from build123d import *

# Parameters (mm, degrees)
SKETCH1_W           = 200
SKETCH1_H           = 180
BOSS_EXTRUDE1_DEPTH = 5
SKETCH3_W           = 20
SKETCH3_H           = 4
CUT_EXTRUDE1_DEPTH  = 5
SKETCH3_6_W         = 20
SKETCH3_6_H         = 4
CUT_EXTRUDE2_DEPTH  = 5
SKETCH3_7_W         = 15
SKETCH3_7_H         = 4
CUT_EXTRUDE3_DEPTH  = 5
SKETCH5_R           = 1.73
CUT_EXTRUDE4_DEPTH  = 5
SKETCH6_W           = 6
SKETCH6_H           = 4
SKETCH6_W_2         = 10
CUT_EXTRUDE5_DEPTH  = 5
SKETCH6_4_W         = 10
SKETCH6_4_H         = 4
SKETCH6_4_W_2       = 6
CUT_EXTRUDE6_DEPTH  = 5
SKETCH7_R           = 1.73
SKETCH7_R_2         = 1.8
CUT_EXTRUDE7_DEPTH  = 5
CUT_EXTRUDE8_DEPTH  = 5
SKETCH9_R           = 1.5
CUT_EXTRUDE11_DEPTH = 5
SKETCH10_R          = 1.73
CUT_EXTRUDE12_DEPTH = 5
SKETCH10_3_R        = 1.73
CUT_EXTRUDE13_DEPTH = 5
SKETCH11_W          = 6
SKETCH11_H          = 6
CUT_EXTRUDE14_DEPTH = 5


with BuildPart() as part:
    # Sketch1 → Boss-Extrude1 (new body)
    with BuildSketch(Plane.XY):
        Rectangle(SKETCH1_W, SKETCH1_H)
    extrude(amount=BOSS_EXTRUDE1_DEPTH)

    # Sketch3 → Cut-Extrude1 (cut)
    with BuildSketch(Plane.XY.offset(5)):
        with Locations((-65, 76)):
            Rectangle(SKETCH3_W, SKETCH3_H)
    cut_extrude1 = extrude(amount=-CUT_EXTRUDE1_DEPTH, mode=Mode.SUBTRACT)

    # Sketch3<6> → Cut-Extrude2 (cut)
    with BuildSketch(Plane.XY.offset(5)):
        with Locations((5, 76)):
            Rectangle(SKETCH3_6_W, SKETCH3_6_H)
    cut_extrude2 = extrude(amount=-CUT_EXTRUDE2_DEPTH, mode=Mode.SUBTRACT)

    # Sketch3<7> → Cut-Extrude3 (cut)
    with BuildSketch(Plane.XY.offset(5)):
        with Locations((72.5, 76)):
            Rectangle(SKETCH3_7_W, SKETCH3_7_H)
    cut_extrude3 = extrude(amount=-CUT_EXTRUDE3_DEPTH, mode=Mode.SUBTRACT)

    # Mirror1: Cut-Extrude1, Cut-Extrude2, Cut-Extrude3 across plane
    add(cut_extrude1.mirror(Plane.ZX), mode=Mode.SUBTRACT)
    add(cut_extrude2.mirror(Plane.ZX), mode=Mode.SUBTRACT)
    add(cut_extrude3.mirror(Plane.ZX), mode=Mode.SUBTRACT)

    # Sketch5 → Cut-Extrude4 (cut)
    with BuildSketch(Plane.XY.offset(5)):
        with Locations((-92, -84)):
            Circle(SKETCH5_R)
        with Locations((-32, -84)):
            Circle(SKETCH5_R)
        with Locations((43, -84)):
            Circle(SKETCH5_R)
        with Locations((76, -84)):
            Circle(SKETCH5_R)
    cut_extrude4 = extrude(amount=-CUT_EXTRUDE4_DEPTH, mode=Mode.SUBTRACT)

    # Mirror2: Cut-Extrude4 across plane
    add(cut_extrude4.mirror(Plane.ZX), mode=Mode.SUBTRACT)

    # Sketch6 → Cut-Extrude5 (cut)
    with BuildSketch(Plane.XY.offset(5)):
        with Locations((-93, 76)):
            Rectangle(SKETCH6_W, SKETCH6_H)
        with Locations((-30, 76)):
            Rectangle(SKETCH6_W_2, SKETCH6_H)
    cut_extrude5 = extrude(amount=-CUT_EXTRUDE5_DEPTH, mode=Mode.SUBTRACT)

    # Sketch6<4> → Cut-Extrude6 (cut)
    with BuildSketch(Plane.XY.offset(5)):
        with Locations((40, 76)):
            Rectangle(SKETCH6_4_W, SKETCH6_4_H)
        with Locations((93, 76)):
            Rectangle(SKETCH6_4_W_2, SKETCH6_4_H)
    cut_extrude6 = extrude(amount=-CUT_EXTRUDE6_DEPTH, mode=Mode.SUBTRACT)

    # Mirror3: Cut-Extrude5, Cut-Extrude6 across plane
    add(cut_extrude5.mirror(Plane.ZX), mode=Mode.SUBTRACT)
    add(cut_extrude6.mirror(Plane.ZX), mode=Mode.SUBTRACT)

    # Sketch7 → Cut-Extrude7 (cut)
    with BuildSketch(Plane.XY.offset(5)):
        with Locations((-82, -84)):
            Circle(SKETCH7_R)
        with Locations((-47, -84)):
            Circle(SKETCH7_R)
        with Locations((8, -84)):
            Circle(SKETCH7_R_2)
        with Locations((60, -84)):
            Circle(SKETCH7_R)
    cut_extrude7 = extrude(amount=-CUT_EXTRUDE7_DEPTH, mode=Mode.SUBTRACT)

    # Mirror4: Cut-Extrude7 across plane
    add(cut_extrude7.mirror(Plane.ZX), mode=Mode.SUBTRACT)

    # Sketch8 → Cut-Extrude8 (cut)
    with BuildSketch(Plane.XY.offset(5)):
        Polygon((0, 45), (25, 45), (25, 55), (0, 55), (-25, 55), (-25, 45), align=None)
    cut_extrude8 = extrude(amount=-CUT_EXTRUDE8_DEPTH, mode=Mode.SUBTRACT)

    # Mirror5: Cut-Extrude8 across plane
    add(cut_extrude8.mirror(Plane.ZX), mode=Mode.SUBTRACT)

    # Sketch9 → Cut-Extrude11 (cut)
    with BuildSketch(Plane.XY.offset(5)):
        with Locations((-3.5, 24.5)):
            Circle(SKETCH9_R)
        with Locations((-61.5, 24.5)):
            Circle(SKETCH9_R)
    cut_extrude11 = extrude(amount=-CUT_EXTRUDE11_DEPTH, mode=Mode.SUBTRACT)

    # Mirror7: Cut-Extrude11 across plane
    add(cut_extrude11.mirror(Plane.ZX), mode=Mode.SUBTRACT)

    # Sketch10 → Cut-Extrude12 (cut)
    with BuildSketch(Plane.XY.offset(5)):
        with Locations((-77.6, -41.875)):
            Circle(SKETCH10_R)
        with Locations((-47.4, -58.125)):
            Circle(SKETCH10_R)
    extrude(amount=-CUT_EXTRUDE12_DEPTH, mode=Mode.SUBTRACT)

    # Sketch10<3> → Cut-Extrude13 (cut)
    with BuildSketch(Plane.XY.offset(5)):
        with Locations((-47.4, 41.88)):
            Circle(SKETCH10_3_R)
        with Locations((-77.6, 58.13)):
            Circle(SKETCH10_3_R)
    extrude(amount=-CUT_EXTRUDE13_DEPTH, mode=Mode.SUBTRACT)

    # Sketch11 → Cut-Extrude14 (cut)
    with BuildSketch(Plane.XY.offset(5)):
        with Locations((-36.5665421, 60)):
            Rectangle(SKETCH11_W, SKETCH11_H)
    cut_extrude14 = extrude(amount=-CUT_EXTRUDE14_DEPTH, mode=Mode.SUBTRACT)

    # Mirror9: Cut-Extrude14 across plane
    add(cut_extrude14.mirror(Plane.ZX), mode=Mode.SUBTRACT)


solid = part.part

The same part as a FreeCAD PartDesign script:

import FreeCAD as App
import Part
import Sketcher

V = App.Vector


def add_polygon(sketch, points):
    """Adds a closed chain of lines whose ends are joined by coincident constraints."""
    first, n = sketch.GeometryCount, len(points)
    for a, b in zip(points, points[1:] + points[:1]):
        sketch.addGeometry(Part.LineSegment(App.Vector(*a, 0), App.Vector(*b, 0)), False)
    for i in range(n):
        sketch.addConstraint(Sketcher.Constraint("Coincident", first + i, 2, first + (i + 1) % n, 1))

doc = App.newDocument("Part")
body = doc.addObject("PartDesign::Body", "Body")

sketch1 = body.newObject("Sketcher::SketchObject", "Sketch")
sketch1.AttachmentSupport = (doc.getObject("XY_Plane"), [""])
sketch1.MapMode = "FlatFace"
add_polygon(sketch1, [(-100, 90), (-100, -90), (100, -90), (100, 90)])
sketch1.addConstraint(Sketcher.Constraint("Vertical", 0))
sketch1.addConstraint(Sketcher.Constraint("Horizontal", 1))
sketch1.addConstraint(Sketcher.Constraint("Vertical", 2))
sketch1.addConstraint(Sketcher.Constraint("Horizontal", 3))
sketch1.addConstraint(Sketcher.Constraint("Symmetric", 0, 2, 2, 2, -1, 1))
sketch1.addConstraint(Sketcher.Constraint("DistanceX", 1, 1, 1, 2, 200.0))
sketch1.addConstraint(Sketcher.Constraint("DistanceY", 0, 2, 0, 1, 180.0))
pad1 = body.newObject("PartDesign::Pad", "Pad")
pad1.Profile = sketch1
pad1.Length = 5

sketch2 = body.newObject("Sketcher::SketchObject", "Sketch001")
sketch2.AttachmentSupport = (doc.getObject("XY_Plane"), [""])
sketch2.MapMode = "FlatFace"
sketch2.AttachmentOffset = App.Placement(V(0, 0, 5), App.Rotation())
add_polygon(sketch2, [(-75, 78), (-75, 74), (-55, 74), (-55, 78)])
sketch2.addConstraint(Sketcher.Constraint("Vertical", 0))
sketch2.addConstraint(Sketcher.Constraint("Horizontal", 1))
sketch2.addConstraint(Sketcher.Constraint("Vertical", 2))
sketch2.addConstraint(Sketcher.Constraint("Horizontal", 3))
sketch2.addConstraint(Sketcher.Constraint("DistanceX", 1, 1, 1, 2, 20.0))
sketch2.addConstraint(Sketcher.Constraint("DistanceY", 0, 2, 0, 1, 4.0))
sketch2.addConstraint(Sketcher.Constraint("DistanceX", 0, 2, -1, 1, 75.0))
sketch2.addConstraint(Sketcher.Constraint("DistanceY", -1, 1, 0, 2, 74.0))
pocket1 = body.newObject("PartDesign::Pocket", "Pocket")
pocket1.Profile = sketch2
pocket1.Length = 5

sketch3 = body.newObject("Sketcher::SketchObject", "Sketch002")
sketch3.AttachmentSupport = (doc.getObject("XY_Plane"), [""])
sketch3.MapMode = "FlatFace"
sketch3.AttachmentOffset = App.Placement(V(0, 0, 5), App.Rotation())
add_polygon(sketch3, [(-5, 78), (-5, 74), (15, 74), (15, 78)])
sketch3.addConstraint(Sketcher.Constraint("Vertical", 0))
sketch3.addConstraint(Sketcher.Constraint("Horizontal", 1))
sketch3.addConstraint(Sketcher.Constraint("Vertical", 2))
sketch3.addConstraint(Sketcher.Constraint("Horizontal", 3))
sketch3.addConstraint(Sketcher.Constraint("DistanceX", 1, 1, 1, 2, 20.0))
sketch3.addConstraint(Sketcher.Constraint("DistanceY", 0, 2, 0, 1, 4.0))
sketch3.addConstraint(Sketcher.Constraint("DistanceX", 0, 2, -1, 1, 5.0))
sketch3.addConstraint(Sketcher.Constraint("DistanceY", -1, 1, 0, 2, 74.0))
pocket2 = body.newObject("PartDesign::Pocket", "Pocket001")
pocket2.Profile = sketch3
pocket2.Length = 5

sketch4 = body.newObject("Sketcher::SketchObject", "Sketch003")
sketch4.AttachmentSupport = (doc.getObject("XY_Plane"), [""])
sketch4.MapMode = "FlatFace"
sketch4.AttachmentOffset = App.Placement(V(0, 0, 5), App.Rotation())
add_polygon(sketch4, [(65, 78), (65, 74), (80, 74), (80, 78)])
sketch4.addConstraint(Sketcher.Constraint("Vertical", 0))
sketch4.addConstraint(Sketcher.Constraint("Horizontal", 1))
sketch4.addConstraint(Sketcher.Constraint("Vertical", 2))
sketch4.addConstraint(Sketcher.Constraint("Horizontal", 3))
sketch4.addConstraint(Sketcher.Constraint("DistanceX", 1, 1, 1, 2, 15.0))
sketch4.addConstraint(Sketcher.Constraint("DistanceY", 0, 2, 0, 1, 4.0))
sketch4.addConstraint(Sketcher.Constraint("DistanceX", -1, 1, 0, 2, 65.0))
sketch4.addConstraint(Sketcher.Constraint("DistanceY", -1, 1, 0, 2, 74.0))
pocket3 = body.newObject("PartDesign::Pocket", "Pocket002")
pocket3.Profile = sketch4
pocket3.Length = 5
doc.recompute()

mirrored = body.newObject("PartDesign::Mirrored", "Mirrored")
mirrored.Originals = [pocket1, pocket2, pocket3]
mirrored.MirrorPlane = (doc.getObject("XZ_Plane"), [""])
body.Tip = mirrored

sketch5 = body.newObject("Sketcher::SketchObject", "Sketch004")
sketch5.AttachmentSupport = (doc.getObject("XY_Plane"), [""])
sketch5.MapMode = "FlatFace"
sketch5.AttachmentOffset = App.Placement(V(0, 0, 5), App.Rotation())
sketch5.addGeometry(Part.Circle(V(-92, -84, 0), V(0, 0, 1), 1.7), False)
sketch5.addGeometry(Part.Circle(V(-32, -84, 0), V(0, 0, 1), 1.7), False)
sketch5.addGeometry(Part.Circle(V(43, -84, 0), V(0, 0, 1), 1.7), False)
sketch5.addGeometry(Part.Circle(V(76, -84, 0), V(0, 0, 1), 1.7), False)
sketch5.addConstraint(Sketcher.Constraint("Equal", 0, 1))
sketch5.addConstraint(Sketcher.Constraint("Equal", 1, 2))
sketch5.addConstraint(Sketcher.Constraint("Equal", 2, 3))
sketch5.addConstraint(Sketcher.Constraint("Horizontal", 0, 3, 1, 3))
sketch5.addConstraint(Sketcher.Constraint("Horizontal", 1, 3, 2, 3))
sketch5.addConstraint(Sketcher.Constraint("Horizontal", 2, 3, 3, 3))
sketch5.addConstraint(Sketcher.Constraint("Diameter", 0, 3.46))
sketch5.addConstraint(Sketcher.Constraint("DistanceX", 0, 3, -1, 1, 92.0))
sketch5.addConstraint(Sketcher.Constraint("DistanceY", 0, 3, -1, 1, 84.0))
sketch5.addConstraint(Sketcher.Constraint("DistanceX", 1, 3, -1, 1, 32.0))
sketch5.addConstraint(Sketcher.Constraint("DistanceX", -1, 1, 2, 3, 43.0))
sketch5.addConstraint(Sketcher.Constraint("DistanceX", -1, 1, 3, 3, 76.0))
pocket4 = body.newObject("PartDesign::Pocket", "Pocket003")
pocket4.Profile = sketch5
pocket4.Length = 5
doc.recompute()

mirrored2 = body.newObject("PartDesign::Mirrored", "Mirrored001")
mirrored2.Originals = [pocket4]
mirrored2.MirrorPlane = (doc.getObject("XZ_Plane"), [""])
body.Tip = mirrored2

sketch6 = body.newObject("Sketcher::SketchObject", "Sketch005")
sketch6.AttachmentSupport = (doc.getObject("XY_Plane"), [""])
sketch6.MapMode = "FlatFace"
sketch6.AttachmentOffset = App.Placement(V(0, 0, 5), App.Rotation())
add_polygon(sketch6, [(-96, 78), (-96, 74), (-90, 74), (-90, 78)])
add_polygon(sketch6, [(-35, 78), (-35, 74), (-25, 74), (-25, 78)])
sketch6.addConstraint(Sketcher.Constraint("Vertical", 0))
sketch6.addConstraint(Sketcher.Constraint("Horizontal", 1))
sketch6.addConstraint(Sketcher.Constraint("Vertical", 2))
sketch6.addConstraint(Sketcher.Constraint("Horizontal", 3))
sketch6.addConstraint(Sketcher.Constraint("Vertical", 4))
sketch6.addConstraint(Sketcher.Constraint("Horizontal", 5))
sketch6.addConstraint(Sketcher.Constraint("Vertical", 6))
sketch6.addConstraint(Sketcher.Constraint("Horizontal", 7))
sketch6.addConstraint(Sketcher.Constraint("Horizontal", 1, 2, 4, 2))
sketch6.addConstraint(Sketcher.Constraint("Horizontal", 3, 2, 6, 2))
sketch6.addConstraint(Sketcher.Constraint("DistanceX", 1, 1, 1, 2, 6.0))
sketch6.addConstraint(Sketcher.Constraint("DistanceX", 5, 1, 5, 2, 10.0))
sketch6.addConstraint(Sketcher.Constraint("DistanceY", 0, 2, 0, 1, 4.0))
sketch6.addConstraint(Sketcher.Constraint("DistanceX", 0, 2, -1, 1, 96.0))
sketch6.addConstraint(Sketcher.Constraint("DistanceY", -1, 1, 0, 2, 74.0))
sketch6.addConstraint(Sketcher.Constraint("DistanceX", 4, 2, -1, 1, 35.0))
pocket5 = body.newObject("PartDesign::Pocket", "Pocket004")
pocket5.Profile = sketch6
pocket5.Length = 5

sketch7 = body.newObject("Sketcher::SketchObject", "Sketch006")
sketch7.AttachmentSupport = (doc.getObject("XY_Plane"), [""])
sketch7.MapMode = "FlatFace"
sketch7.AttachmentOffset = App.Placement(V(0, 0, 5), App.Rotation())
add_polygon(sketch7, [(35, 78), (35, 74), (45, 74), (45, 78)])
add_polygon(sketch7, [(90, 78), (90, 74), (96, 74), (96, 78)])
sketch7.addConstraint(Sketcher.Constraint("Vertical", 0))
sketch7.addConstraint(Sketcher.Constraint("Horizontal", 1))
sketch7.addConstraint(Sketcher.Constraint("Vertical", 2))
sketch7.addConstraint(Sketcher.Constraint("Horizontal", 3))
sketch7.addConstraint(Sketcher.Constraint("Vertical", 4))
sketch7.addConstraint(Sketcher.Constraint("Horizontal", 5))
sketch7.addConstraint(Sketcher.Constraint("Vertical", 6))
sketch7.addConstraint(Sketcher.Constraint("Horizontal", 7))
sketch7.addConstraint(Sketcher.Constraint("Horizontal", 1, 2, 4, 2))
sketch7.addConstraint(Sketcher.Constraint("Horizontal", 3, 2, 6, 2))
sketch7.addConstraint(Sketcher.Constraint("DistanceX", 1, 1, 1, 2, 10.0))
sketch7.addConstraint(Sketcher.Constraint("DistanceX", 5, 1, 5, 2, 6.0))
sketch7.addConstraint(Sketcher.Constraint("DistanceY", 0, 2, 0, 1, 4.0))
sketch7.addConstraint(Sketcher.Constraint("DistanceX", -1, 1, 0, 2, 35.0))
sketch7.addConstraint(Sketcher.Constraint("DistanceY", -1, 1, 0, 2, 74.0))
sketch7.addConstraint(Sketcher.Constraint("DistanceX", -1, 1, 4, 2, 90.0))
pocket6 = body.newObject("PartDesign::Pocket", "Pocket005")
pocket6.Profile = sketch7
pocket6.Length = 5
doc.recompute()

mirrored3 = body.newObject("PartDesign::Mirrored", "Mirrored002")
mirrored3.Originals = [pocket5, pocket6]
mirrored3.MirrorPlane = (doc.getObject("XZ_Plane"), [""])
body.Tip = mirrored3

sketch8 = body.newObject("Sketcher::SketchObject", "Sketch007")
sketch8.AttachmentSupport = (doc.getObject("XY_Plane"), [""])
sketch8.MapMode = "FlatFace"
sketch8.AttachmentOffset = App.Placement(V(0, 0, 5), App.Rotation())
sketch8.addGeometry(Part.Circle(V(-82, -84, 0), V(0, 0, 1), 1.7), False)
sketch8.addGeometry(Part.Circle(V(-47, -84, 0), V(0, 0, 1), 1.7), False)
sketch8.addGeometry(Part.Circle(V(8, -84, 0), V(0, 0, 1), 1.8), False)
sketch8.addGeometry(Part.Circle(V(60, -84, 0), V(0, 0, 1), 1.7), False)
sketch8.addConstraint(Sketcher.Constraint("Equal", 0, 1))
sketch8.addConstraint(Sketcher.Constraint("Equal", 1, 3))
sketch8.addConstraint(Sketcher.Constraint("Horizontal", 0, 3, 1, 3))
sketch8.addConstraint(Sketcher.Constraint("Horizontal", 1, 3, 2, 3))
sketch8.addConstraint(Sketcher.Constraint("Horizontal", 2, 3, 3, 3))
sketch8.addConstraint(Sketcher.Constraint("Diameter", 2, 3.6))
sketch8.addConstraint(Sketcher.Constraint("Diameter", 0, 3.46))
sketch8.addConstraint(Sketcher.Constraint("DistanceX", 0, 3, -1, 1, 82.0))
sketch8.addConstraint(Sketcher.Constraint("DistanceY", 0, 3, -1, 1, 84.0))
sketch8.addConstraint(Sketcher.Constraint("DistanceX", 1, 3, -1, 1, 47.0))
sketch8.addConstraint(Sketcher.Constraint("DistanceX", -1, 1, 2, 3, 8.0))
sketch8.addConstraint(Sketcher.Constraint("DistanceX", -1, 1, 3, 3, 60.0))
pocket7 = body.newObject("PartDesign::Pocket", "Pocket006")
pocket7.Profile = sketch8
pocket7.Length = 5
doc.recompute()

mirrored4 = body.newObject("PartDesign::Mirrored", "Mirrored003")
mirrored4.Originals = [pocket7]
mirrored4.MirrorPlane = (doc.getObject("XZ_Plane"), [""])
body.Tip = mirrored4

sketch9 = body.newObject("Sketcher::SketchObject", "Sketch008")
sketch9.AttachmentSupport = (doc.getObject("XY_Plane"), [""])
sketch9.MapMode = "FlatFace"
sketch9.AttachmentOffset = App.Placement(V(0, 0, 5), App.Rotation())
add_polygon(sketch9, [(25, 45), (25, 55), (-25, 55), (-25, 45)])
sketch9.addConstraint(Sketcher.Constraint("Vertical", 0))
sketch9.addConstraint(Sketcher.Constraint("Horizontal", 1))
sketch9.addConstraint(Sketcher.Constraint("Vertical", 2))
sketch9.addConstraint(Sketcher.Constraint("Horizontal", 3))
sketch9.addConstraint(Sketcher.Constraint("DistanceX", 1, 2, 1, 1, 50.0))
sketch9.addConstraint(Sketcher.Constraint("DistanceY", 0, 1, 0, 2, 10.0))
sketch9.addConstraint(Sketcher.Constraint("DistanceX", -1, 1, 0, 2, 25.0))
sketch9.addConstraint(Sketcher.Constraint("DistanceY", -1, 1, 0, 2, 55.0))
pocket8 = body.newObject("PartDesign::Pocket", "Pocket007")
pocket8.Profile = sketch9
pocket8.Length = 5
doc.recompute()

mirrored5 = body.newObject("PartDesign::Mirrored", "Mirrored004")
mirrored5.Originals = [pocket8]
mirrored5.MirrorPlane = (doc.getObject("XZ_Plane"), [""])
body.Tip = mirrored5

sketch10 = body.newObject("Sketcher::SketchObject", "Sketch009")
sketch10.AttachmentSupport = (doc.getObject("XY_Plane"), [""])
sketch10.MapMode = "FlatFace"
sketch10.AttachmentOffset = App.Placement(V(0, 0, 5), App.Rotation())
sketch10.addGeometry(Part.Circle(V(-3.5, 24.5, 0), V(0, 0, 1), 1.5), False)
sketch10.addGeometry(Part.Circle(V(-61.5, 24.5, 0), V(0, 0, 1), 1.5), False)
sketch10.addConstraint(Sketcher.Constraint("Equal", 0, 1))
sketch10.addConstraint(Sketcher.Constraint("Horizontal", 0, 3, 1, 3))
sketch10.addConstraint(Sketcher.Constraint("Diameter", 0, 3.0))
sketch10.addConstraint(Sketcher.Constraint("DistanceX", 1, 3, 0, 3, 58.0))
sketch10.addConstraint(Sketcher.Constraint("DistanceX", 0, 3, -1, 1, 3.5))
sketch10.addConstraint(Sketcher.Constraint("DistanceY", -1, 1, 0, 3, 24.5))
pocket9 = body.newObject("PartDesign::Pocket", "Pocket008")
pocket9.Profile = sketch10
pocket9.Length = 5
doc.recompute()

mirrored6 = body.newObject("PartDesign::Mirrored", "Mirrored005")
mirrored6.Originals = [pocket9]
mirrored6.MirrorPlane = (doc.getObject("XZ_Plane"), [""])
body.Tip = mirrored6

sketch11 = body.newObject("Sketcher::SketchObject", "Sketch010")
sketch11.AttachmentSupport = (doc.getObject("XY_Plane"), [""])
sketch11.MapMode = "FlatFace"
sketch11.AttachmentOffset = App.Placement(V(0, 0, 5), App.Rotation())
sketch11.addGeometry(Part.Circle(V(-77.6, -41.9, 0), V(0, 0, 1), 1.7), False)
sketch11.addGeometry(Part.Circle(V(-47.4, -58.1, 0), V(0, 0, 1), 1.7), False)
sketch11.addConstraint(Sketcher.Constraint("Equal", 0, 1))
sketch11.addConstraint(Sketcher.Constraint("Diameter", 0, 3.46))
sketch11.addConstraint(Sketcher.Constraint("DistanceX", 0, 3, -1, 1, 77.6))
sketch11.addConstraint(Sketcher.Constraint("DistanceX", 1, 3, -1, 1, 47.4))
sketch11.addConstraint(Sketcher.Constraint("DistanceY", 1, 3, 0, 3, 16.25))
sketch11.addConstraint(Sketcher.Constraint("DistanceY", 0, 3, -1, 1, 41.875))
pocket10 = body.newObject("PartDesign::Pocket", "Pocket009")
pocket10.Profile = sketch11
pocket10.Length = 5

sketch12 = body.newObject("Sketcher::SketchObject", "Sketch011")
sketch12.AttachmentSupport = (doc.getObject("XY_Plane"), [""])
sketch12.MapMode = "FlatFace"
sketch12.AttachmentOffset = App.Placement(V(0, 0, 5), App.Rotation())
sketch12.addGeometry(Part.Circle(V(-47.4, 41.9, 0), V(0, 0, 1), 1.7), False)
sketch12.addGeometry(Part.Circle(V(-77.6, 58.1, 0), V(0, 0, 1), 1.7), False)
sketch12.addConstraint(Sketcher.Constraint("Equal", 0, 1))
sketch12.addConstraint(Sketcher.Constraint("Diameter", 0, 3.46))
sketch12.addConstraint(Sketcher.Constraint("DistanceX", 0, 3, -1, 1, 47.4))
sketch12.addConstraint(Sketcher.Constraint("DistanceX", 1, 3, -1, 1, 77.6))
sketch12.addConstraint(Sketcher.Constraint("DistanceY", -1, 1, 0, 3, 41.88))
sketch12.addConstraint(Sketcher.Constraint("DistanceY", -1, 1, 1, 3, 58.13))
pocket11 = body.newObject("PartDesign::Pocket", "Pocket010")
pocket11.Profile = sketch12
pocket11.Length = 5

sketch13 = body.newObject("Sketcher::SketchObject", "Sketch012")
sketch13.AttachmentSupport = (doc.getObject("XY_Plane"), [""])
sketch13.MapMode = "FlatFace"
sketch13.AttachmentOffset = App.Placement(V(0, 0, 5), App.Rotation())
add_polygon(sketch13, [(-40, 63), (-40, 57), (-34, 57), (-34, 63)])
sketch13.addConstraint(Sketcher.Constraint("Vertical", 0))
sketch13.addConstraint(Sketcher.Constraint("Horizontal", 1))
sketch13.addConstraint(Sketcher.Constraint("Vertical", 2))
sketch13.addConstraint(Sketcher.Constraint("Horizontal", 3))
sketch13.addConstraint(Sketcher.Constraint("Equal", 3, 0))
sketch13.addConstraint(Sketcher.Constraint("DistanceX", 1, 1, 1, 2, 6.0))
sketch13.addConstraint(Sketcher.Constraint("DistanceY", -1, 1, 0, 2, 57.0))
sketch13.addConstraint(Sketcher.Constraint("DistanceX", 0, 2, -1, 1, 39.566542))
pocket12 = body.newObject("PartDesign::Pocket", "Pocket011")
pocket12.Profile = sketch13
pocket12.Length = 5
doc.recompute()

mirrored7 = body.newObject("PartDesign::Mirrored", "Mirrored006")
mirrored7.Originals = [pocket12]
mirrored7.MirrorPlane = (doc.getObject("XZ_Plane"), [""])
body.Tip = mirrored7

doc.recompute()
